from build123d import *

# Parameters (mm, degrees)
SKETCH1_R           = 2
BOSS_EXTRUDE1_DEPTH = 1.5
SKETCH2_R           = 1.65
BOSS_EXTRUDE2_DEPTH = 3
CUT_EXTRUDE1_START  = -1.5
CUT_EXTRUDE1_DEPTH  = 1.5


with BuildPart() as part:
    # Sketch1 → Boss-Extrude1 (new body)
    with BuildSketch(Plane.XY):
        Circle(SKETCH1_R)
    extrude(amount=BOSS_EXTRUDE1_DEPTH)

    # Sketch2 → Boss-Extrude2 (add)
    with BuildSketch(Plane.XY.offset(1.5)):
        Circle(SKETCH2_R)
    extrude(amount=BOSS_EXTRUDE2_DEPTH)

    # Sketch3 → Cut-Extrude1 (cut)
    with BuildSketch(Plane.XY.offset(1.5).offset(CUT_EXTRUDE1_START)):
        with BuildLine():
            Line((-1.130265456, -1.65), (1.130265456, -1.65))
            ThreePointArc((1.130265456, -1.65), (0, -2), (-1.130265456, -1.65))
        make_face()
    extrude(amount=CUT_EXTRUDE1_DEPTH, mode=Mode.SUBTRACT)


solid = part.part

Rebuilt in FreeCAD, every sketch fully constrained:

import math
import FreeCAD as App
import Part
import Sketcher
from FreeCAD import Vector

doc = App.newDocument("Part")
body = doc.addObject("PartDesign::Body", "Body")

sketch1 = body.newObject("Sketcher::SketchObject", "Sketch")
sketch1.AttachmentSupport = (doc.getObject("XY_Plane"), [""])
sketch1.MapMode = "FlatFace"
sketch1.addGeometry(Part.Circle(Vector(0, 0, 0), Vector(0, 0, 1), 2), False)
sketch1.addConstraint(Sketcher.Constraint("Coincident", 0, 3, -1, 1))
sketch1.addConstraint(Sketcher.Constraint("Diameter", 0, 4.0))
pad1 = body.newObject("PartDesign::Pad", "Pad")
pad1.Profile = sketch1
pad1.Length = 1.5

sketch2 = body.newObject("Sketcher::SketchObject", "Sketch001")
sketch2.AttachmentSupport = (doc.getObject("XY_Plane"), [""])
sketch2.MapMode = "FlatFace"
sketch2.AttachmentOffset = App.Placement(Vector(0, 0, 1.5), App.Rotation())
sketch2.addGeometry(Part.Circle(Vector(0, 0, 0), Vector(0, 0, 1), 1.6), False)
sketch2.addConstraint(Sketcher.Constraint("Coincident", 0, 3, -1, 1))
sketch2.addConstraint(Sketcher.Constraint("Diameter", 0, 3.3))
pad2 = body.newObject("PartDesign::Pad", "Pad001")
pad2.Profile = sketch2
pad2.Length = 3

sketch3 = body.newObject("Sketcher::SketchObject", "Sketch002")
sketch3.AttachmentSupport = (doc.getObject("XY_Plane"), [""])
sketch3.MapMode = "FlatFace"
sketch3.addGeometry(Part.LineSegment(Vector(1.1, -1.6, 0), Vector(-1.1, -1.6, 0)), False)
sketch3.addGeometry(Part.ArcOfCircle(Part.Circle(Vector(0, 0, 0), Vector(0, 0, 1), 2), math.radians(-124), math.radians(-56)), False)
sketch3.addConstraint(Sketcher.Constraint("Coincident", 0, 1, 1, 2))
sketch3.addConstraint(Sketcher.Constraint("Coincident", 1, 1, 0, 2))
sketch3.addConstraint(Sketcher.Constraint("Horizontal", 0))
sketch3.addConstraint(Sketcher.Constraint("Coincident", 1, 3, -1, 1))
sketch3.addConstraint(Sketcher.Constraint("Radius", 1, 2.0))
sketch3.addConstraint(Sketcher.Constraint("DistanceY", 0, 1, -1, 1, 1.65))
pocket1 = body.newObject("PartDesign::Pocket", "Pocket")
pocket1.Profile = sketch3
pocket1.Length = 1.5
pocket1.Reversed = True

doc.recompute()
